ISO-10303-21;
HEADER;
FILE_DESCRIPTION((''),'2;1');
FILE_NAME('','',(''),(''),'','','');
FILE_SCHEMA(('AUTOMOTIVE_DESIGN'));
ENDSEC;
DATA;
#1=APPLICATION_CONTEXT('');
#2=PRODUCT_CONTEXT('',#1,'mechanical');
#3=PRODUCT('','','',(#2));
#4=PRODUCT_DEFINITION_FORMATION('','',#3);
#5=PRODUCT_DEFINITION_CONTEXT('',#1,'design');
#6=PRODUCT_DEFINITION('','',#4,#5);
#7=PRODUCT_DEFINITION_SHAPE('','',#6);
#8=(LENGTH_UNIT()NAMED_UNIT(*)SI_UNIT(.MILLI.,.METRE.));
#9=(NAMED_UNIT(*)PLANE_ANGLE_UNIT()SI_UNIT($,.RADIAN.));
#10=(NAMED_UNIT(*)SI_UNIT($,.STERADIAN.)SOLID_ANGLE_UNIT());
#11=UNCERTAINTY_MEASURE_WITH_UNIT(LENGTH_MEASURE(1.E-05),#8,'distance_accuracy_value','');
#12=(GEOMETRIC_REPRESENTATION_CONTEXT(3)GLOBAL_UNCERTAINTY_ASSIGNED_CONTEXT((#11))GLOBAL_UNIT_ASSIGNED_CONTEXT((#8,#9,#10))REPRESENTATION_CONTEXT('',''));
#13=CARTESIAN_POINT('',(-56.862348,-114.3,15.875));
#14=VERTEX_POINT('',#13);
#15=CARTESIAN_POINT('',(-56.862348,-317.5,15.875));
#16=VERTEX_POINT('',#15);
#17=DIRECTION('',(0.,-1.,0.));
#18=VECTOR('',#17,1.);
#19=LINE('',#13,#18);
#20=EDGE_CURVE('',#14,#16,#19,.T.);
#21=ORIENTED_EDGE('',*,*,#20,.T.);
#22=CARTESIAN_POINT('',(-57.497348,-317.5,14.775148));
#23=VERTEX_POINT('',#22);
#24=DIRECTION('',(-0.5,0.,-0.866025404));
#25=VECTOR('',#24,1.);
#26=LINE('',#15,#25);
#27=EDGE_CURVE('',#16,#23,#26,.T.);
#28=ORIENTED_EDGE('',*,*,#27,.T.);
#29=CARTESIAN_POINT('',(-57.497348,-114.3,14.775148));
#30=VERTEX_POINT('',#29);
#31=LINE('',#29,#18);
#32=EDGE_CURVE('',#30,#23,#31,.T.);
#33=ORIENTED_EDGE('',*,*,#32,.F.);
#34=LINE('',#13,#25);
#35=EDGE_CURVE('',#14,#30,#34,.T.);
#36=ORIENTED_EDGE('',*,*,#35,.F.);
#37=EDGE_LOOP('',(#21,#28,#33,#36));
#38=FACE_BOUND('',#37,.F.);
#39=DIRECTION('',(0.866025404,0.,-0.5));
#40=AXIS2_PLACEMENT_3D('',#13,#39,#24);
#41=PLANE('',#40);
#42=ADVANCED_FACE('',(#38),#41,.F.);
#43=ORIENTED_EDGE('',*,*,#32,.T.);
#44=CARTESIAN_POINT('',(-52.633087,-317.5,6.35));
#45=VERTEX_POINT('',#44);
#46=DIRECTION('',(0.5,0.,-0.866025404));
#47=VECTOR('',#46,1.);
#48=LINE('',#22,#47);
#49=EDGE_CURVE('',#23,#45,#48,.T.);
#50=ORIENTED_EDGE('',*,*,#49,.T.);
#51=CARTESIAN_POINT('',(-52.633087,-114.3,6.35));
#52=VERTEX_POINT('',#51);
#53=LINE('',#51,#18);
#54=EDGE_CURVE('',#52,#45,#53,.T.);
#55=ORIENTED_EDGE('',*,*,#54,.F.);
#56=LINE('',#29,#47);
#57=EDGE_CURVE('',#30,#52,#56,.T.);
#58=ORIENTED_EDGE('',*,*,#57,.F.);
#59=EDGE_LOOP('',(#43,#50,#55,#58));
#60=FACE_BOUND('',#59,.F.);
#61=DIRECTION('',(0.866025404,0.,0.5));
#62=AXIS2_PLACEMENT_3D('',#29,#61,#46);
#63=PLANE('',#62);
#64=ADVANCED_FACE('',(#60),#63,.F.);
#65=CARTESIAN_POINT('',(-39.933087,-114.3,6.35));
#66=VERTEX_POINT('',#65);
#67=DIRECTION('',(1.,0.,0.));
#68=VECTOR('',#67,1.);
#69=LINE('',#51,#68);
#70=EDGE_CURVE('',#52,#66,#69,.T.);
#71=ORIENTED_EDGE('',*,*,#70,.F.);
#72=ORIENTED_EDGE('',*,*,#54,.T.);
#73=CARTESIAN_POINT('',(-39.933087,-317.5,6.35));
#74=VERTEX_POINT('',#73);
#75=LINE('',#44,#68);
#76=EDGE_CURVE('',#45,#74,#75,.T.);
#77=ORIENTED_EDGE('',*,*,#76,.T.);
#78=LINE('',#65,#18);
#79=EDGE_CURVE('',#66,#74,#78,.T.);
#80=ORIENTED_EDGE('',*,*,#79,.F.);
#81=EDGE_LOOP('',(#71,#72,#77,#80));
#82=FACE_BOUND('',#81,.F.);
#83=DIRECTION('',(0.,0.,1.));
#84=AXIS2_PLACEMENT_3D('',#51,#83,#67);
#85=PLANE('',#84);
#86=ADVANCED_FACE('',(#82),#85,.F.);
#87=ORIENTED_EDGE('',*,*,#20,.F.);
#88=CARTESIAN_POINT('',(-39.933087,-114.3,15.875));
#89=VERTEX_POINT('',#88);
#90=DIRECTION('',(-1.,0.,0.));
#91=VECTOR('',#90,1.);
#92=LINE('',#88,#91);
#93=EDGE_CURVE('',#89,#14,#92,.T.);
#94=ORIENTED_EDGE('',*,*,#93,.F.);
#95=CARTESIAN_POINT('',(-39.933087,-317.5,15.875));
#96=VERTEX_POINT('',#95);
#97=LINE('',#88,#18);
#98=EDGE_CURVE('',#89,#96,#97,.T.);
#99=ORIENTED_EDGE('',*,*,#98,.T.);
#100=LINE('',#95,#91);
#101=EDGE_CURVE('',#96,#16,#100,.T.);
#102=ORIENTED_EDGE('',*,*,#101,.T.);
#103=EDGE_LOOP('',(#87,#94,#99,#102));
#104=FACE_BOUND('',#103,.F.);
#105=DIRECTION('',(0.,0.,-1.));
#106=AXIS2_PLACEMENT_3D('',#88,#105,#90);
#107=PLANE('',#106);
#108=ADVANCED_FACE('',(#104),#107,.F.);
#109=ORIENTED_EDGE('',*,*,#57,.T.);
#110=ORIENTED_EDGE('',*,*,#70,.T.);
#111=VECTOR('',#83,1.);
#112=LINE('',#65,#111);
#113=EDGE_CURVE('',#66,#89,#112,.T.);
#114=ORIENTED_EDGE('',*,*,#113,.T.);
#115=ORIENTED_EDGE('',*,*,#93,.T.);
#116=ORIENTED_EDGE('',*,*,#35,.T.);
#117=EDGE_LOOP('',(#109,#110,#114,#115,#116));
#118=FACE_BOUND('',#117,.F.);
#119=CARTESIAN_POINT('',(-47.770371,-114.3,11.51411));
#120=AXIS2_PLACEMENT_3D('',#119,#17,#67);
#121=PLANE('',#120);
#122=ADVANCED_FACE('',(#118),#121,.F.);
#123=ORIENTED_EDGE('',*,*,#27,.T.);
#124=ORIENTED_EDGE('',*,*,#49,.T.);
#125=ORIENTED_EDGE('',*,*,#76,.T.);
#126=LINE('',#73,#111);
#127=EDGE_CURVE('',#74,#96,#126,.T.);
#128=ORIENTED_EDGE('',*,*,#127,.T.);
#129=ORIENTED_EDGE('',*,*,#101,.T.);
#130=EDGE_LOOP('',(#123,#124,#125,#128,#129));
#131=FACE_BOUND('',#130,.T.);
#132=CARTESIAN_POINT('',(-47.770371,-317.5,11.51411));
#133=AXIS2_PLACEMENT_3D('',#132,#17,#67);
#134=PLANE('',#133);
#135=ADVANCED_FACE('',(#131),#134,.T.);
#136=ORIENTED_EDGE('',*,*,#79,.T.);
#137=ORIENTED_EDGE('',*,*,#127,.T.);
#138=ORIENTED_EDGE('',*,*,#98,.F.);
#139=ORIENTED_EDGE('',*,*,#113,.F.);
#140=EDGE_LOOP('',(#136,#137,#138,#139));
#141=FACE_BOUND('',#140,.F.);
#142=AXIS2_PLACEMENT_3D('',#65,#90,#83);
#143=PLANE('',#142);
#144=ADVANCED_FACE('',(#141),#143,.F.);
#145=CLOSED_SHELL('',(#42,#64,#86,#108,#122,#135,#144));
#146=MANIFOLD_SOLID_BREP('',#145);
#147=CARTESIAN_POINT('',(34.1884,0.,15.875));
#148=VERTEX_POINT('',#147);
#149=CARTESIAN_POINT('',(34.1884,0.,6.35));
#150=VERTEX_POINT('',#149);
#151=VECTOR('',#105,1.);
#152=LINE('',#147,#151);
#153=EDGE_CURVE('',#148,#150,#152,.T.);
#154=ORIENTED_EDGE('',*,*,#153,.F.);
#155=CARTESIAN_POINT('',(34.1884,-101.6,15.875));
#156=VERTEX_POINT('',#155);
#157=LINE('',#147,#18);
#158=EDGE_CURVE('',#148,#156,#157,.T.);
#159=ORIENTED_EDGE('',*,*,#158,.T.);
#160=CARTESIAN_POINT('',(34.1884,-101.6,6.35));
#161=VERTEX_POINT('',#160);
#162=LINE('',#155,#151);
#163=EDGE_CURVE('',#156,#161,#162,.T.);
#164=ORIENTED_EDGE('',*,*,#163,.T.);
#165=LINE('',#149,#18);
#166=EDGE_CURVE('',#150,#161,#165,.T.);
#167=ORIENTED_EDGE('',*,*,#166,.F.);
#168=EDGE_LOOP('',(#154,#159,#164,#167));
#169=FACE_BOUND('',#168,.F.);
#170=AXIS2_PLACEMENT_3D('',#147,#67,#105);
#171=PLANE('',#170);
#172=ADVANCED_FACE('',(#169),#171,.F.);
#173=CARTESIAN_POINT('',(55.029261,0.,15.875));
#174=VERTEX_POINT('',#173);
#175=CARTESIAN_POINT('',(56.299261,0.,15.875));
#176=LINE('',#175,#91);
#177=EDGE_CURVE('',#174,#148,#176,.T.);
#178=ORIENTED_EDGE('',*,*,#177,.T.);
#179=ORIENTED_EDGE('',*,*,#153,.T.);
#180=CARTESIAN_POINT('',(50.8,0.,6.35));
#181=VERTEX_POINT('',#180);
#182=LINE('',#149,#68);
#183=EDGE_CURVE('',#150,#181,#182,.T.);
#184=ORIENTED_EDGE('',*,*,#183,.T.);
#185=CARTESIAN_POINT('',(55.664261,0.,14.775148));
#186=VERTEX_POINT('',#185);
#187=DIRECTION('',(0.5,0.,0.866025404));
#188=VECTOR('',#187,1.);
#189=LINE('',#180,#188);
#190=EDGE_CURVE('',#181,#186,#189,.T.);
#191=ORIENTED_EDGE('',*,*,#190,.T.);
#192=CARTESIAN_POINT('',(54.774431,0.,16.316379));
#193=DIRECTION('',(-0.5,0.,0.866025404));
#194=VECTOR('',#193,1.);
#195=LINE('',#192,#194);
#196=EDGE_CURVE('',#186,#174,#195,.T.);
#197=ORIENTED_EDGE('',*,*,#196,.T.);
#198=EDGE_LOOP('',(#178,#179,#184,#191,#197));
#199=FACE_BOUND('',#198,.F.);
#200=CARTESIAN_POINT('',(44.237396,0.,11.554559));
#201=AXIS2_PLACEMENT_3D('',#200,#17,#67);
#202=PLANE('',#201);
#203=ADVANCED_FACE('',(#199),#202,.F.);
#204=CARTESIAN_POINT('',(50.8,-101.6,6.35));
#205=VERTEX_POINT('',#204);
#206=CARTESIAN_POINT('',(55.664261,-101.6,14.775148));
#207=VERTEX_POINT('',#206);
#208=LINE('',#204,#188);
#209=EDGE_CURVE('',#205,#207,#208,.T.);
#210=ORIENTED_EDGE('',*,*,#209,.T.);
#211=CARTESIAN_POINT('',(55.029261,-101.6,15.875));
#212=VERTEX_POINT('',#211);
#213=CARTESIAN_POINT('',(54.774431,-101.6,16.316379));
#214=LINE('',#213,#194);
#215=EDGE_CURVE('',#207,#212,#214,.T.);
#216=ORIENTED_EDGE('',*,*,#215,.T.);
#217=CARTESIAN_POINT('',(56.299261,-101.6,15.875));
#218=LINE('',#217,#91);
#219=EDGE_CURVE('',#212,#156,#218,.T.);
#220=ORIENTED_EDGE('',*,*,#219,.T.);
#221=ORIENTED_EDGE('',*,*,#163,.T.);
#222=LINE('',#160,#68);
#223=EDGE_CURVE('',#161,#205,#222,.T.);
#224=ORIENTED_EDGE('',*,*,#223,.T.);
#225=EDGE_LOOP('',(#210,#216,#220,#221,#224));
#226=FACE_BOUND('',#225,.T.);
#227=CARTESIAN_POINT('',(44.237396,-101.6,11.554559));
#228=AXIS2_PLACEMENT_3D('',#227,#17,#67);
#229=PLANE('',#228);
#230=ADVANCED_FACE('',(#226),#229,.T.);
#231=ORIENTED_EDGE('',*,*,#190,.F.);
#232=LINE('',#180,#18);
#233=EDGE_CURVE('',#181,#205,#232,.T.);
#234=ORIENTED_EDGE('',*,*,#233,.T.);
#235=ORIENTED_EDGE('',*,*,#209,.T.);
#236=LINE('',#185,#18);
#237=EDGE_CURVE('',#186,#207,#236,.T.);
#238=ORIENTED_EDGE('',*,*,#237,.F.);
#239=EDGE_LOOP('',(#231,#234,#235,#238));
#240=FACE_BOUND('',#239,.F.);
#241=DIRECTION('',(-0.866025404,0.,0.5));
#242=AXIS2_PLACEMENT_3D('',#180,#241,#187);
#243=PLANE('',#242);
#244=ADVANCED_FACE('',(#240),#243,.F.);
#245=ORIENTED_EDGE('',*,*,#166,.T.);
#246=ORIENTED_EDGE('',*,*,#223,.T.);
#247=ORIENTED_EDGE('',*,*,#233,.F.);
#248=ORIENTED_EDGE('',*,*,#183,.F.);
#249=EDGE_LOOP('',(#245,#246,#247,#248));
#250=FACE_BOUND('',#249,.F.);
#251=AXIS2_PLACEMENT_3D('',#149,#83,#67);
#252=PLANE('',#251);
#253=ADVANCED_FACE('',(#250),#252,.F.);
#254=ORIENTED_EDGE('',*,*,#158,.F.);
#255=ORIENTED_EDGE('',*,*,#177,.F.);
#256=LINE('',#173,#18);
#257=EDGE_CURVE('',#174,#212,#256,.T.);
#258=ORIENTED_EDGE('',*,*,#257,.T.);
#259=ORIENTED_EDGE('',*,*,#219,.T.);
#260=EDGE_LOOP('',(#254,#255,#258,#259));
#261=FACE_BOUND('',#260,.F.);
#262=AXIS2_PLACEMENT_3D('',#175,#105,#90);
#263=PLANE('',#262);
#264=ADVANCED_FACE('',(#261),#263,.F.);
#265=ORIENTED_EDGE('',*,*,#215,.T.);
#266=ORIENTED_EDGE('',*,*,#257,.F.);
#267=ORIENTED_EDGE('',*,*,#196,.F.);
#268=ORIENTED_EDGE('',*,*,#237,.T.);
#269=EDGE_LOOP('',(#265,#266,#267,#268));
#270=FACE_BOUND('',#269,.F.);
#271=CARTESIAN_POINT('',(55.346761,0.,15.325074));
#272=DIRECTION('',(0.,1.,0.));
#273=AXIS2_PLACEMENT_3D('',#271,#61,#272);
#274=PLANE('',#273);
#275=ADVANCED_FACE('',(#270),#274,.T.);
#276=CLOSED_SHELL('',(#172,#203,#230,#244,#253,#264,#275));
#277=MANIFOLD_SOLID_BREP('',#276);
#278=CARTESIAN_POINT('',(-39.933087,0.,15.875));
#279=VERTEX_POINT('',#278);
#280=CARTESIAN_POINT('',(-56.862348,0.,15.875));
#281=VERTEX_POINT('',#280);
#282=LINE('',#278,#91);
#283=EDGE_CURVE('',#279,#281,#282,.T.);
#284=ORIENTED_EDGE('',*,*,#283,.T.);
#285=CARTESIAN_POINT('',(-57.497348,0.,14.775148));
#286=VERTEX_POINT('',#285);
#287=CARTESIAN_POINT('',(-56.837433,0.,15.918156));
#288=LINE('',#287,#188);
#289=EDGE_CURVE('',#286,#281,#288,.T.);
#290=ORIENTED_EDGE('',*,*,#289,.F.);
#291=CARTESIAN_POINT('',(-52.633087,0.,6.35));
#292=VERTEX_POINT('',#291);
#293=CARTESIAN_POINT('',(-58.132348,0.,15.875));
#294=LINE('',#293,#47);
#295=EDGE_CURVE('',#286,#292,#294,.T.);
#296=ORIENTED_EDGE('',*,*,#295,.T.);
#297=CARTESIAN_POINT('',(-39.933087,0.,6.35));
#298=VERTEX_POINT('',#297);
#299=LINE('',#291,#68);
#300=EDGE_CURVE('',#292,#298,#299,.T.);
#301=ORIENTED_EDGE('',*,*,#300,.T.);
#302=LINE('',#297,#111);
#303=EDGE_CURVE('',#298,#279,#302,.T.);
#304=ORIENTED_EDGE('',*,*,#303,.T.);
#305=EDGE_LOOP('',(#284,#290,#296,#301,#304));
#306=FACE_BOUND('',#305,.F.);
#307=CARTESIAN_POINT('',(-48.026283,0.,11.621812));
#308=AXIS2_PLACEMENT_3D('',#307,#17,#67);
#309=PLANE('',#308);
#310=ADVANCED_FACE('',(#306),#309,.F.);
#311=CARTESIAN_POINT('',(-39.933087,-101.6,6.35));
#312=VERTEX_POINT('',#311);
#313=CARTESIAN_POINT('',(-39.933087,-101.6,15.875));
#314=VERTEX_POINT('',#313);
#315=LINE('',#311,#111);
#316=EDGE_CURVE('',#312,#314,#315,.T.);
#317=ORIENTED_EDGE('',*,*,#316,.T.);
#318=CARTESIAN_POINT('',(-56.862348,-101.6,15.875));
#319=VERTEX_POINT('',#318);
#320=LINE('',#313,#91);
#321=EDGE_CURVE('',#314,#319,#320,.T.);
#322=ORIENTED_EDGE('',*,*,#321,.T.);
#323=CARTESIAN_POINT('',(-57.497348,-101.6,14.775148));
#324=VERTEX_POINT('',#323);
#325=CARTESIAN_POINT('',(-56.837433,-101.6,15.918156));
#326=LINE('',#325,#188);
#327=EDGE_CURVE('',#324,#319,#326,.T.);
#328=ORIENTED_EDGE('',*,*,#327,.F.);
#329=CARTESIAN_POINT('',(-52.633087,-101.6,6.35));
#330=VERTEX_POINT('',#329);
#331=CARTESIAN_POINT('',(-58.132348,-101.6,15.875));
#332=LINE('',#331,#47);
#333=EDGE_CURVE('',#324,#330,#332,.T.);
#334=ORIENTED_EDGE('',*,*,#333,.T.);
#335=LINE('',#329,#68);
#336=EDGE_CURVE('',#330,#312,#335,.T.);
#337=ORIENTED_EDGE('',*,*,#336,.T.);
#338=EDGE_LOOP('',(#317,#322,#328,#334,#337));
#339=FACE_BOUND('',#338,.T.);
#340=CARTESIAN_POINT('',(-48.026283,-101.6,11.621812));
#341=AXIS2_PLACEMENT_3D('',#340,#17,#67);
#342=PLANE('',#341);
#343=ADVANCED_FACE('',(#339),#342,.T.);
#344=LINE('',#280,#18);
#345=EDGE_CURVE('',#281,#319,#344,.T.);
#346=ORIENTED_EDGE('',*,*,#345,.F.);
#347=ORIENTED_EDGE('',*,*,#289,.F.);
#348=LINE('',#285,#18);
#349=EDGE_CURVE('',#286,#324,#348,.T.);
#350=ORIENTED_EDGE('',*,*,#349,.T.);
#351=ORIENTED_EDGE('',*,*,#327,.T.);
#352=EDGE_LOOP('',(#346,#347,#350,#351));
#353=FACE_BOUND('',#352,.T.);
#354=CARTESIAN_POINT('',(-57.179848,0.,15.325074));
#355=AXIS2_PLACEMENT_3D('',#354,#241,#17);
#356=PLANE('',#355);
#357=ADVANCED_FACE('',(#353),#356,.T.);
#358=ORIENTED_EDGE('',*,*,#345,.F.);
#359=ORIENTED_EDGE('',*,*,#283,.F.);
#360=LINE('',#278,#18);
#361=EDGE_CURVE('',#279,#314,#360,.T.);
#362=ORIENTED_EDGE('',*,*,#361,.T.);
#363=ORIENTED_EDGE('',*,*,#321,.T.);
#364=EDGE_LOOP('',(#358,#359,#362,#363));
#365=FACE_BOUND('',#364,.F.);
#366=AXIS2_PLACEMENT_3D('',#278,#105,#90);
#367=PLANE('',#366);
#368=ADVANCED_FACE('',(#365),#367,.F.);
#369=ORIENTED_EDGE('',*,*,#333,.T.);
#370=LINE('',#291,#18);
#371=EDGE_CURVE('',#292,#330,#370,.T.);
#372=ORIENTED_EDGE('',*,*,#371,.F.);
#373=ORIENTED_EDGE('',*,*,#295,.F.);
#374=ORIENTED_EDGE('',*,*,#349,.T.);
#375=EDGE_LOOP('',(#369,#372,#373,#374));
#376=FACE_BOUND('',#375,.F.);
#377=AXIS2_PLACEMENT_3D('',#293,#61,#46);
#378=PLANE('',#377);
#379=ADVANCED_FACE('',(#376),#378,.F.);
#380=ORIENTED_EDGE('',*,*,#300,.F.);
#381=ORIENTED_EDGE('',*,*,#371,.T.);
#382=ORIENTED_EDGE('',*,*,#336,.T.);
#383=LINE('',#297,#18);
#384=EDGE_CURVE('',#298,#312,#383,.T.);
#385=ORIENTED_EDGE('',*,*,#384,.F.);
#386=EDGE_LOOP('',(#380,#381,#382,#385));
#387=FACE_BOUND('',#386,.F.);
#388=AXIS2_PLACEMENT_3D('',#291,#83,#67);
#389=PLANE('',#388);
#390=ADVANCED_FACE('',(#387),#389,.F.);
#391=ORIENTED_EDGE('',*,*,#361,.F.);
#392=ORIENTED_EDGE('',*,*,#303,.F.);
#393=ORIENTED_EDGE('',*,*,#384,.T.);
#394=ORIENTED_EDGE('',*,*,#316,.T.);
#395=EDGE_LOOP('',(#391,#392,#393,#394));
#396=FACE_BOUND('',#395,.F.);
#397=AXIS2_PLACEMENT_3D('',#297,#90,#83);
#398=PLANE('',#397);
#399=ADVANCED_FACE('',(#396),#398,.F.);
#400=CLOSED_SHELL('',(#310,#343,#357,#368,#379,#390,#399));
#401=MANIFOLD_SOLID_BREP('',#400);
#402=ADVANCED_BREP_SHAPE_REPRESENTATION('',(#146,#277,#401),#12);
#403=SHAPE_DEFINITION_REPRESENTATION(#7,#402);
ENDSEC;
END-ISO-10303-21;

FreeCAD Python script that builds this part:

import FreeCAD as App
import Part
import Sketcher
Q = App.Units.Quantity


def edges_at(feature, points):
    """Names of the edges that pass closest to the given points."""
    edges = feature.Shape.Edges
    near = lambda p: min(range(len(edges)), key=lambda i: edges[i].distToShape(Part.Vertex(*p))[0])
    return sorted({f"Edge{near(p) + 1}" for p in points})

doc = App.newDocument("Part")
body = doc.addObject("PartDesign::Body", "Body")

# Sketch on XZ plane
sketch1 = body.newObject("Sketcher::SketchObject", "Sketch")
sketch1.AttachmentSupport = (doc.getObject("XZ_Plane"), [""])
sketch1.MapMode = "FlatFace"
sketch1.addGeometry([
    Part.LineSegment(App.Vector(-58, 16, 0), App.Vector(-53, 6, 0)),
    Part.LineSegment(App.Vector(-53, 6, 0), App.Vector(-40, 6, 0)),
    Part.LineSegment(App.Vector(-40, 6, 0), App.Vector(-40, 16, 0)),
    Part.LineSegment(App.Vector(-40, 16, 0), App.Vector(-58, 16, 0)),
], False)
sketch1.addConstraint([
    Sketcher.Constraint("Coincident", 0, 2, 1, 1),
    Sketcher.Constraint("Coincident", 1, 2, 2, 1),
    Sketcher.Constraint("Coincident", 2, 2, 3, 1),
    Sketcher.Constraint("Coincident", 3, 2, 0, 1),
    Sketcher.Constraint("Horizontal", 1),
    Sketcher.Constraint("Vertical", 2),
    Sketcher.Constraint("Horizontal", 3),
    Sketcher.Constraint("DistanceX", 1, 1, 1, 2, Q("0.5 in")),
    Sketcher.Constraint("Angle", 0, Q("-60 deg")),
    Sketcher.Constraint("DistanceY", 2, 1, 2, 2, Q("0.375 in")),
    Sketcher.Constraint("DistanceY", -1, 1, 0, 2, Q("0.25 in")),
    Sketcher.Constraint("DistanceX", 3, 2, -1, 1, 58.132348),
])
pad1 = body.newObject("PartDesign::Pad", "Pad")
pad1.Profile = sketch1
pad1.Length = Q("4 in")
doc.recompute()

chamfer = body.newObject("PartDesign::Chamfer", "Chamfer")
chamfer.Base = (pad1, edges_at(pad1, [(-58.132, -50.8, 15.875)]))
chamfer.ChamferType = "Two distances"
chamfer.Size = Q("0.05 in")
chamfer.Size2 = Q("0.05 in")
body2 = doc.addObject("PartDesign::Body", "Body001")

# Sketch on XZ plane
sketch2 = body2.newObject("Sketcher::SketchObject", "Sketch001")
sketch2.AttachmentSupport = (doc.getObject("XZ_Plane001"), [""])
sketch2.MapMode = "FlatFace"
sketch2.addGeometry([
    Part.LineSegment(App.Vector(34, 6, 0), App.Vector(51, 6, 0)),
    Part.LineSegment(App.Vector(51, 6, 0), App.Vector(56, 16, 0)),
    Part.LineSegment(App.Vector(56, 16, 0), App.Vector(34, 16, 0)),
    Part.LineSegment(App.Vector(34, 16, 0), App.Vector(34, 6, 0)),
], False)
sketch2.addConstraint([
    Sketcher.Constraint("Coincident", 0, 2, 1, 1),
    Sketcher.Constraint("Coincident", 1, 2, 2, 1),
    Sketcher.Constraint("Coincident", 2, 2, 3, 1),
    Sketcher.Constraint("Coincident", 3, 2, 0, 1),
    Sketcher.Constraint("Horizontal", 0),
    Sketcher.Constraint("Horizontal", 2),
    Sketcher.Constraint("Vertical", 3),
    Sketcher.Constraint("DistanceX", -1, 1, 0, 2, Q("2 in")),
    Sketcher.Constraint("Angle", 1, Q("60 deg")),
    Sketcher.Constraint("DistanceX", 0, 1, 0, 2, Q("0.654 in")),
    Sketcher.Constraint("DistanceY", 3, 2, 3, 1, Q("0.375 in")),
    Sketcher.Constraint("DistanceY", -1, 1, 0, 2, Q("0.25 in")),
])
pad2 = body2.newObject("PartDesign::Pad", "Pad001")
pad2.Profile = sketch2
pad2.Length = Q("4 in")
doc.recompute()

chamfer2 = body2.newObject("PartDesign::Chamfer", "Chamfer001")
chamfer2.Base = (pad2, edges_at(pad2, [(56.299, -50.8, 15.875)]))
chamfer2.ChamferType = "Two distances"
chamfer2.Size = Q("0.05 in")
chamfer2.Size2 = Q("0.05 in")
body3 = doc.addObject("PartDesign::Body", "Body002")

# Sketch on XZ plane
sketch3 = body3.newObject("Sketcher::SketchObject", "Sketch002")
sketch3.AttachmentSupport = (doc.getObject("XZ_Plane002"), [""])
sketch3.MapMode = "FlatFace"
sketch3.AttachmentOffset = App.Placement(App.Vector(0, 0, 4.5 * 25.4), App.Rotation())
sketch3.addGeometry([
    Part.LineSegment(App.Vector(-39.9, 6.3, 0), App.Vector(-39.9, 15.9, 0)),  # 0
    Part.LineSegment(App.Vector(-39.9, 15.9, 0), App.Vector(-56.9, 15.9, 0)),  # 1
    Part.LineSegment(App.Vector(-56.9, 15.9, 0), App.Vector(-57.5, 14.8, 0)),  # 2
    Part.LineSegment(App.Vector(-57.5, 14.8, 0), App.Vector(-52.6, 6.3, 0)),  # 3
    Part.LineSegment(App.Vector(-52.6, 6.3, 0), App.Vector(-39.9, 6.3, 0)),  # 4
], False)
sketch3.addConstraint([
    Sketcher.Constraint("Coincident", 0, 2, 1, 1),
    Sketcher.Constraint("Coincident", 1, 2, 2, 1),
    Sketcher.Constraint("Coincident", 2, 2, 3, 1),
    Sketcher.Constraint("Coincident", 3, 2, 4, 1),
    Sketcher.Constraint("Coincident", 4, 2, 0, 1),
    Sketcher.Constraint("Vertical", 0),
    Sketcher.Constraint("Horizontal", 1),
    Sketcher.Constraint("Horizontal", 4),
    Sketcher.Constraint("DistanceX", 4, 1, 4, 2, Q("0.5 in")),
    Sketcher.Constraint("Angle", 2, Q("-120 deg")),
    Sketcher.Constraint("Angle", 3, Q("-60 deg")),
    Sketcher.Constraint("Distance", 2, Q("0.05 in")),
    Sketcher.Constraint("DistanceY", 0, 1, 0, 2, Q("0.375 in")),
    Sketcher.Constraint("DistanceY", -1, 1, 3, 2, Q("0.25 in")),
    Sketcher.Constraint("DistanceX", 1, 2, -1, 1, 56.862348),
])
pad3 = body3.newObject("PartDesign::Pad", "Pad002")
pad3.Profile = sketch3
pad3.Length = Q("8 in")

doc.recompute()
